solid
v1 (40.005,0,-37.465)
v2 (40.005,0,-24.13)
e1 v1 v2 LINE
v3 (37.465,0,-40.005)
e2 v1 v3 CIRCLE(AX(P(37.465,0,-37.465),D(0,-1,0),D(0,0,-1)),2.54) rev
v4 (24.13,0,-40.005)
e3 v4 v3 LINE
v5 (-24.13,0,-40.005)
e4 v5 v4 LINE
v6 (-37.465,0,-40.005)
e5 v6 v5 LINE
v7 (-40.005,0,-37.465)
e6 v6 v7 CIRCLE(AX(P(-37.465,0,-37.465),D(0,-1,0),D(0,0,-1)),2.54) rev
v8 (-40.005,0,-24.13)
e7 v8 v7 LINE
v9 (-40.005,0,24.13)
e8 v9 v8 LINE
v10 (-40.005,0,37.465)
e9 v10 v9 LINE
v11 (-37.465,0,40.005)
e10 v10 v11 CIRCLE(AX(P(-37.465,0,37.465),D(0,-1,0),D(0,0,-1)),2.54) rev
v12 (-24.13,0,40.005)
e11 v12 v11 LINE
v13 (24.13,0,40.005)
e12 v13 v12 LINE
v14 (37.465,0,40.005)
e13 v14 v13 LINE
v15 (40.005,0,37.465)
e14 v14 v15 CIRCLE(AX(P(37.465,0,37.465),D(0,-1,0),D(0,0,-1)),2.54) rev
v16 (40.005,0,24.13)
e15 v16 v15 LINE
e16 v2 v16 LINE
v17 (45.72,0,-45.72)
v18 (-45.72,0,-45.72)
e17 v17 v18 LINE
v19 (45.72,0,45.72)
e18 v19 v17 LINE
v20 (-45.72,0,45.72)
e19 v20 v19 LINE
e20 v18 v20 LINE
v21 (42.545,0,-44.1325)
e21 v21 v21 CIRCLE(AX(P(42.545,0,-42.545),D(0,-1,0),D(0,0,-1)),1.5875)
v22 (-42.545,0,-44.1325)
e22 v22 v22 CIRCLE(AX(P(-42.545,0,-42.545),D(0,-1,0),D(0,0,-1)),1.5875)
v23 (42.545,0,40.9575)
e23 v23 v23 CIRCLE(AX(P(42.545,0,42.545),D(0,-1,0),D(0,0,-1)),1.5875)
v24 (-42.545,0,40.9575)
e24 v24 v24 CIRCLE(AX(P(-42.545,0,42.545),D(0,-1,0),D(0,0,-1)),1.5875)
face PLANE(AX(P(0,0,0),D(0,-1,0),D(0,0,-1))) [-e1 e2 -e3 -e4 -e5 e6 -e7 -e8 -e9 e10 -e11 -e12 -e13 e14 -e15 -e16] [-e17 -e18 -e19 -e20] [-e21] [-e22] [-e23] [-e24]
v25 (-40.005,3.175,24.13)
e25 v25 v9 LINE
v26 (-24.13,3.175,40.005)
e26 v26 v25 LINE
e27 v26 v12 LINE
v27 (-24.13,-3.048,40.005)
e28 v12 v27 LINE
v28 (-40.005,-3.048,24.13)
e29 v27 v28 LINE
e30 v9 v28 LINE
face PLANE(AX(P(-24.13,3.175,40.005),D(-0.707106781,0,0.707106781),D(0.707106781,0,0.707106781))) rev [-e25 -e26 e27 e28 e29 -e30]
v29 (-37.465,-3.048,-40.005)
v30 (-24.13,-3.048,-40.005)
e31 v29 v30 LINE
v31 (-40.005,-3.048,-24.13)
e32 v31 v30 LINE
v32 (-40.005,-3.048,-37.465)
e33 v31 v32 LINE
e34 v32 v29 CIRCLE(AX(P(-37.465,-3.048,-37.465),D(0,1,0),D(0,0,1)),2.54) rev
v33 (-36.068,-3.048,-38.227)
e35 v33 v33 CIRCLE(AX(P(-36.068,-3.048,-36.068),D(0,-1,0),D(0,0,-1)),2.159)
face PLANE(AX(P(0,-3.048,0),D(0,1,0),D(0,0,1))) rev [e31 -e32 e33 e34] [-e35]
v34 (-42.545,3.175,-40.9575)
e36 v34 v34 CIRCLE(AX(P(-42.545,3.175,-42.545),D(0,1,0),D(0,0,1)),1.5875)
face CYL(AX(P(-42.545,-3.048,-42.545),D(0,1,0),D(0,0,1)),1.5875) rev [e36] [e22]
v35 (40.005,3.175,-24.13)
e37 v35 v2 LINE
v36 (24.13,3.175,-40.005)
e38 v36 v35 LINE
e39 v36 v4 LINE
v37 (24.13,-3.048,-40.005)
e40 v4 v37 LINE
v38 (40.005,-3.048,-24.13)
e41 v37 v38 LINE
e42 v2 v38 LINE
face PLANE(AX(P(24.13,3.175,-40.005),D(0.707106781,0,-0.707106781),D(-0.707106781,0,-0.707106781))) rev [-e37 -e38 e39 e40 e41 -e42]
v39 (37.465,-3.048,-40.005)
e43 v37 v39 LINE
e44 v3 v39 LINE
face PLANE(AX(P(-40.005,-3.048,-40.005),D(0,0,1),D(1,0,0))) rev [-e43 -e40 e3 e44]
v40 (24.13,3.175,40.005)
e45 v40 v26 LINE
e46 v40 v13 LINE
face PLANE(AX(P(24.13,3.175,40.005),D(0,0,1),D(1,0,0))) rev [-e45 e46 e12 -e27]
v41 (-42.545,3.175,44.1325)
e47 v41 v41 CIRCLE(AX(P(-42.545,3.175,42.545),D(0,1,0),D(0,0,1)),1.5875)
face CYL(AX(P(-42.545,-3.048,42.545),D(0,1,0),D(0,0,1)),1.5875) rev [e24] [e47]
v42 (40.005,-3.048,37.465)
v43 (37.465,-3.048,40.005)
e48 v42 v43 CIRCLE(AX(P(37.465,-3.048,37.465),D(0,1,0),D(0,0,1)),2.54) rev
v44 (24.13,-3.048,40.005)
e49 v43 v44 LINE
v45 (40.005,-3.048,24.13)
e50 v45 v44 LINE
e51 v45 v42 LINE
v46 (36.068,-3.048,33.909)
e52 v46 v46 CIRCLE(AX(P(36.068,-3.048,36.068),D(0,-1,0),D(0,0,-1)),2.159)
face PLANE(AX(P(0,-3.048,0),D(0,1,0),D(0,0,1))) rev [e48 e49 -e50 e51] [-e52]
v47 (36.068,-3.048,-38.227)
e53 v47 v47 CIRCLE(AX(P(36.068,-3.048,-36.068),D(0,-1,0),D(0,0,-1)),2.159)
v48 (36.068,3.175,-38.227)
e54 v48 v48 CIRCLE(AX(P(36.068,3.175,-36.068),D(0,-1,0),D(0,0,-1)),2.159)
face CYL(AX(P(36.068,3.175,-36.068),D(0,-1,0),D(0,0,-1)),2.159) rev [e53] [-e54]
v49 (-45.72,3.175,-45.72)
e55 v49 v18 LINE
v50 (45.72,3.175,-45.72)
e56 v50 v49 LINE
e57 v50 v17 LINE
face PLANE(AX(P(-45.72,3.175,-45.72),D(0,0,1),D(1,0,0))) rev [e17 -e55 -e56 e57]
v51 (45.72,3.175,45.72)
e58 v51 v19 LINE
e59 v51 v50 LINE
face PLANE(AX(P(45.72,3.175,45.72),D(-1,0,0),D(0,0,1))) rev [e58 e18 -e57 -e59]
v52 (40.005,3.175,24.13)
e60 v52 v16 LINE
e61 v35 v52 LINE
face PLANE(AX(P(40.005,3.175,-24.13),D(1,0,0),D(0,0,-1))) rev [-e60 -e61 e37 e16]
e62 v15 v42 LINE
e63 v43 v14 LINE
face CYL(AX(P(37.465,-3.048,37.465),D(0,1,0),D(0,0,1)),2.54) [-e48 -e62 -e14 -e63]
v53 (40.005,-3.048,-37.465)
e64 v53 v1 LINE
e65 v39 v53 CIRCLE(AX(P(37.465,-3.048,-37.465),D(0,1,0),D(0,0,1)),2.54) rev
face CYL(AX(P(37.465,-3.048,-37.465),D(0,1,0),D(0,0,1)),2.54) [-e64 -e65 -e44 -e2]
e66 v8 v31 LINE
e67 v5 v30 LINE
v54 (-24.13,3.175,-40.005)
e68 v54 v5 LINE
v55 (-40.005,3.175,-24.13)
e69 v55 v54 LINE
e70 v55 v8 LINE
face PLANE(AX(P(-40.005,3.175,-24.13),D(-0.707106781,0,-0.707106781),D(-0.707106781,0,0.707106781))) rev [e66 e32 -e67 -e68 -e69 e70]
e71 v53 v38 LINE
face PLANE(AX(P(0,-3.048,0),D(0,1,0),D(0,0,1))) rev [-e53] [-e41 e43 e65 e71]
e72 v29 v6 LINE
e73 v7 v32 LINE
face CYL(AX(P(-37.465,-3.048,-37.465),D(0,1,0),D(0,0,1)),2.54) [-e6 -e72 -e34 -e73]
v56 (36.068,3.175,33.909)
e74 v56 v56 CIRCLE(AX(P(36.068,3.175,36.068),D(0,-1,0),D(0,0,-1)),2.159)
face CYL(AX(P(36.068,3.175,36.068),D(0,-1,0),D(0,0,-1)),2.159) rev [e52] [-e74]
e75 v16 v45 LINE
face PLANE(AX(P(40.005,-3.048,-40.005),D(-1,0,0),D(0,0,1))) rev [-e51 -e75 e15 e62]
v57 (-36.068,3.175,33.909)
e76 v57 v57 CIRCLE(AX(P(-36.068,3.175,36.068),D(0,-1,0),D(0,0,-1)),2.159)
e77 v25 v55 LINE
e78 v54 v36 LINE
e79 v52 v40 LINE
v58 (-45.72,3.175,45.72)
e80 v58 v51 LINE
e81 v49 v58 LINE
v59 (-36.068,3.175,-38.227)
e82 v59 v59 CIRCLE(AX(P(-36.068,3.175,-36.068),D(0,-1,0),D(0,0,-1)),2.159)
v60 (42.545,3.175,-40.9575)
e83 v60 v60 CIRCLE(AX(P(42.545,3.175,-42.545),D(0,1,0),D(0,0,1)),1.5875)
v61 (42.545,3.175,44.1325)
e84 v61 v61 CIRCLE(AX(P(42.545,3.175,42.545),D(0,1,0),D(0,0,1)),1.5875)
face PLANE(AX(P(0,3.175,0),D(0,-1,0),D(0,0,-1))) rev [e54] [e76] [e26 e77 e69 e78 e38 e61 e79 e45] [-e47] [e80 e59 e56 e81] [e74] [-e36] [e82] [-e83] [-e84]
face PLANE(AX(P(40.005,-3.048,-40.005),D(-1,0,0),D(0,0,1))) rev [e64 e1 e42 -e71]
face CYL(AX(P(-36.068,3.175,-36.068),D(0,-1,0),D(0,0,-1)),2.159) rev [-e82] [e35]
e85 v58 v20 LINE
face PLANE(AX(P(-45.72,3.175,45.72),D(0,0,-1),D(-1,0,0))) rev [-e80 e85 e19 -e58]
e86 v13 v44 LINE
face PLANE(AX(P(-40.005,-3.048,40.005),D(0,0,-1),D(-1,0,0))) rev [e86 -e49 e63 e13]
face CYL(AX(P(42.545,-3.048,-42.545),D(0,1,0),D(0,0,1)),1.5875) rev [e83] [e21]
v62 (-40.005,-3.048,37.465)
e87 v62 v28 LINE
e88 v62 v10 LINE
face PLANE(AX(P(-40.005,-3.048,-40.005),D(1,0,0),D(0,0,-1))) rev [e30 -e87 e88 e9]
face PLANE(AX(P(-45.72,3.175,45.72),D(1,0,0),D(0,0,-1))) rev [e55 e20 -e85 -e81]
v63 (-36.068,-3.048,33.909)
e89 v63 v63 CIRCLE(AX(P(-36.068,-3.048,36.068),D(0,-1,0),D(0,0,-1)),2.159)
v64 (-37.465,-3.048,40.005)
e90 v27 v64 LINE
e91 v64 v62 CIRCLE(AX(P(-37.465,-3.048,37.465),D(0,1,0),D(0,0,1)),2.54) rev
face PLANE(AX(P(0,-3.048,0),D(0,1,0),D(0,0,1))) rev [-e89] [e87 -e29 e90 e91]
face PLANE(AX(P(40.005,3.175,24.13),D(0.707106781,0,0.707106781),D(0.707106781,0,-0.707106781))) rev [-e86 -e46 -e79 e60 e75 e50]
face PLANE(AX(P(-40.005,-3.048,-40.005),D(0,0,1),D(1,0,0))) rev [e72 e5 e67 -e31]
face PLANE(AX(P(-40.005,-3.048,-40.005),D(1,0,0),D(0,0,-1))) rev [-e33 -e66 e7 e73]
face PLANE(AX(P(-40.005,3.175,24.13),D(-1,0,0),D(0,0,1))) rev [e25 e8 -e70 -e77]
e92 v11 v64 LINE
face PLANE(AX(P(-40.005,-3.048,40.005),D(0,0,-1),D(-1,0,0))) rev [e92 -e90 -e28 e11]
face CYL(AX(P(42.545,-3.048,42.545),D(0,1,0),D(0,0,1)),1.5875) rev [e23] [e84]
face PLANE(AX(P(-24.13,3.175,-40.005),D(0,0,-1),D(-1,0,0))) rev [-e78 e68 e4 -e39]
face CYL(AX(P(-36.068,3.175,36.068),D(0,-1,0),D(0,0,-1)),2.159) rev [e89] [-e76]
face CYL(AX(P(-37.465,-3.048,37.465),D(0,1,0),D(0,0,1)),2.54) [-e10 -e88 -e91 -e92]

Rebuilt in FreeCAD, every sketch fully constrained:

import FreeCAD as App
import Part
import Sketcher
Q = App.Units.Quantity


def edges_at(feature, points):
    """Names of the edges that pass closest to the given points."""
    edges = feature.Shape.Edges
    near = lambda p: min(range(len(edges)), key=lambda i: edges[i].distToShape(Part.Vertex(*p))[0])
    return sorted({f"Edge{near(p) + 1}" for p in points})

doc = App.newDocument("Part")
body = doc.addObject("PartDesign::Body", "Body")

sketch1 = body.newObject("Sketcher::SketchObject", "Sketch")
sketch1.AttachmentSupport = (doc.getObject("XZ_Plane"), [""])
sketch1.MapMode = "FlatFace"
sketch1.addGeometry([
    Part.LineSegment(App.Vector(-45.72, -45.72, 0), App.Vector(-45.72, 45.72, 0)),
    Part.LineSegment(App.Vector(-45.72, 45.72, 0), App.Vector(45.72, 45.72, 0)),
    Part.LineSegment(App.Vector(45.72, 45.72, 0), App.Vector(45.72, -45.72, 0)),
    Part.LineSegment(App.Vector(45.72, -45.72, 0), App.Vector(-45.72, -45.72, 0)),
], False)
sketch1.addConstraint([
    Sketcher.Constraint("Coincident", 0, 2, 1, 1),
    Sketcher.Constraint("Coincident", 1, 2, 2, 1),
    Sketcher.Constraint("Coincident", 2, 2, 3, 1),
    Sketcher.Constraint("Coincident", 3, 2, 0, 1),
    Sketcher.Constraint("Vertical", 0),
    Sketcher.Constraint("Horizontal", 1),
    Sketcher.Constraint("Vertical", 2),
    Sketcher.Constraint("Horizontal", 3),
    Sketcher.Constraint("Symmetric", 0, 2, 2, 2, -1, 1),
    Sketcher.Constraint("Equal", 3, 0),
    Sketcher.Constraint("DistanceX", 1, 1, 1, 2, Q("3.6 in")),
])
pad1 = body.newObject("PartDesign::Pad", "Pad")
pad1.Profile = sketch1
pad1.Length = Q("0.125 in")
pad1.Reversed = True

sketch2 = body.newObject("Sketcher::SketchObject", "Sketch001")
sketch2.AttachmentSupport = (doc.getObject("XZ_Plane"), [""])
sketch2.MapMode = "FlatFace"
sketch2.addGeometry([
    Part.LineSegment(App.Vector(-40.005, 40.005, 0), App.Vector(-40.005, -40.005, 0)),
    Part.LineSegment(App.Vector(-40.005, -40.005, 0), App.Vector(40.005, -40.005, 0)),
    Part.LineSegment(App.Vector(40.005, -40.005, 0), App.Vector(40.005, 40.005, 0)),
    Part.LineSegment(App.Vector(40.005, 40.005, 0), App.Vector(-40.005, 40.005, 0)),
], False)
sketch2.addConstraint([
    Sketcher.Constraint("Coincident", 0, 2, 1, 1),
    Sketcher.Constraint("Coincident", 1, 2, 2, 1),
    Sketcher.Constraint("Coincident", 2, 2, 3, 1),
    Sketcher.Constraint("Coincident", 3, 2, 0, 1),
    Sketcher.Constraint("Vertical", 0),
    Sketcher.Constraint("Horizontal", 1),
    Sketcher.Constraint("Vertical", 2),
    Sketcher.Constraint("Horizontal", 3),
    Sketcher.Constraint("Symmetric", 0, 2, 2, 2, -1, 1),
    Sketcher.Constraint("Equal", 3, 0),
    Sketcher.Constraint("DistanceX", 1, 1, 1, 2, Q("3.15 in")),
])
pad2 = body.newObject("PartDesign::Pad", "Pad001")
pad2.Profile = sketch2
pad2.Length = Q("0.12 in")

sketch3 = body.newObject("Sketcher::SketchObject", "Sketch002")
sketch3.AttachmentSupport = (doc.getObject("XZ_Plane"), [""])
sketch3.MapMode = "FlatFace"
sketch3.AttachmentOffset = App.Placement(App.Vector(0, 0, 0.12 * 25.4), App.Rotation())
sketch3.addGeometry([
    Part.LineSegment(App.Vector(-24.13, 40.005, 0), App.Vector(-40.005, 24.13, 0)),
    Part.LineSegment(App.Vector(-40.005, 24.13, 0), App.Vector(-40.005, -24.13, 0)),
    Part.LineSegment(App.Vector(-40.005, -24.13, 0), App.Vector(-24.13, -40.005, 0)),
    Part.LineSegment(App.Vector(-24.13, -40.005, 0), App.Vector(24.13, -40.005, 0)),
    Part.LineSegment(App.Vector(24.13, -40.005, 0), App.Vector(40.005, -24.13, 0)),
    Part.LineSegment(App.Vector(40.005, -24.13, 0), App.Vector(40.005, 24.13, 0)),
    Part.LineSegment(App.Vector(40.005, 24.13, 0), App.Vector(24.13, 40.005, 0)),
    Part.LineSegment(App.Vector(24.13, 40.005, 0), App.Vector(-24.13, 40.005, 0)),
], False)
sketch3.addConstraint([
    Sketcher.Constraint("Coincident", 0, 2, 1, 1),
    Sketcher.Constraint("Coincident", 1, 2, 2, 1),
    Sketcher.Constraint("Coincident", 2, 2, 3, 1),
    Sketcher.Constraint("Coincident", 3, 2, 4, 1),
    Sketcher.Constraint("Coincident", 4, 2, 5, 1),
    Sketcher.Constraint("Coincident", 5, 2, 6, 1),
    Sketcher.Constraint("Coincident", 6, 2, 7, 1),
    Sketcher.Constraint("Coincident", 7, 2, 0, 1),
    Sketcher.Constraint("Vertical", 1),
    Sketcher.Constraint("Horizontal", 3),
    Sketcher.Constraint("Vertical", 5),
    Sketcher.Constraint("Horizontal", 7),
    Sketcher.Constraint("Symmetric", 0, 2, 4, 2, -1, 1),
    Sketcher.Constraint("Symmetric", 2, 2, 6, 2, -1, 1),
    Sketcher.Constraint("Perpendicular", 0, 2),
    Sketcher.Constraint("Perpendicular", 2, 4),
    Sketcher.Constraint("Perpendicular", 4, 6),
    Sketcher.Constraint("Horizontal", 1, 2, 4, 2),
    Sketcher.Constraint("Vertical", 3, 2, 6, 2),
    Sketcher.Constraint("Equal", 7, 1),
    Sketcher.Constraint("DistanceX", 3, 1, 3, 2, Q("1.9 in")),
    Sketcher.Constraint("DistanceX", 1, 2, 4, 2, Q("3.15 in")),
])
pocket1 = body.newObject("PartDesign::Pocket", "Pocket")
pocket1.Profile = sketch3
pocket1.Type = "ThroughAll"

sketch4 = body.newObject("Sketcher::SketchObject", "Sketch003")
sketch4.AttachmentSupport = (doc.getObject("XZ_Plane"), [""])
sketch4.MapMode = "FlatFace"
sketch4.AttachmentOffset = App.Placement(App.Vector(0, 0, 0.12 * 25.4), App.Rotation())
sketch4.addGeometry([
    Part.Circle(App.Vector(-36.068, 36.068, 0), App.Vector(0, 0, 1), 2.159),
    Part.Circle(App.Vector(36.068, 36.068, 0), App.Vector(0, 0, 1), 2.159),
    Part.Circle(App.Vector(36.068, -36.068, 0), App.Vector(0, 0, 1), 2.159),
    Part.Circle(App.Vector(-36.068, -36.068, 0), App.Vector(0, 0, 1), 2.159),
], False)
sketch4.addConstraint([
    Sketcher.Constraint("Equal", 0, 1),
    Sketcher.Constraint("Equal", 1, 2),
    Sketcher.Constraint("Equal", 2, 3),
    Sketcher.Constraint("Symmetric", 0, 3, 2, 3, -1, 1),
    Sketcher.Constraint("Symmetric", 1, 3, 3, 3, -1, 1),
    Sketcher.Constraint("Symmetric", 0, 3, 1, 3, -2),
    Sketcher.Constraint("Diameter", 0, Q("0.17 in")),
    Sketcher.Constraint("DistanceX", 0, 3, -1, 1, Q("1.42 in")),
    Sketcher.Constraint("DistanceY", -1, 1, 0, 3, Q("1.42 in")),
])
pocket2 = body.newObject("PartDesign::Pocket", "Pocket001")
pocket2.Profile = sketch4
pocket2.Type = "ThroughAll"
doc.recompute()

fillet = body.newObject("PartDesign::Fillet", "Fillet")
fillet.Base = (pocket2, edges_at(pocket2, [
    (40.005, -1.524, -40.005),
    (40.005, -1.524, 40.005),
    (-40.005, -1.524, 40.005),
    (-40.005, -1.524, -40.005),
]))
fillet.Radius = Q("0.1 in")

sketch5 = body.newObject("Sketcher::SketchObject", "Sketch004")
sketch5.AttachmentSupport = (doc.getObject("XZ_Plane"), [""])
sketch5.MapMode = "FlatFace"
sketch5.AttachmentOffset = App.Placement(App.Vector(0, 0, -0.125 * 25.4), App.Rotation())
sketch5.addGeometry([
    Part.Circle(App.Vector(-42.545, -42.545, 0), App.Vector(0, 0, 1), 1.5875),
    Part.Circle(App.Vector(42.545, -42.545, 0), App.Vector(0, 0, 1), 1.5875),
    Part.Circle(App.Vector(42.545, 42.545, 0), App.Vector(0, 0, 1), 1.5875),
    Part.Circle(App.Vector(-42.545, 42.545, 0), App.Vector(0, 0, 1), 1.5875),
], False)
sketch5.addConstraint([
    Sketcher.Constraint("Equal", 0, 1),
    Sketcher.Constraint("Equal", 1, 2),
    Sketcher.Constraint("Equal", 2, 3),
    Sketcher.Constraint("Symmetric", 0, 3, 2, 3, -1, 1),
    Sketcher.Constraint("Symmetric", 1, 3, 3, 3, -1, 1),
    Sketcher.Constraint("Symmetric", 0, 3, 1, 3, -2),
    Sketcher.Constraint("Diameter", 0, Q("0.125 in")),
    Sketcher.Constraint("DistanceX", 0, 3, 1, 3, Q("3.35 in")),
    Sketcher.Constraint("DistanceY", 1, 3, 2, 3, Q("3.35 in")),
])
pocket3 = body.newObject("PartDesign::Pocket", "Pocket002")
pocket3.Profile = sketch5
pocket3.Type = "ThroughAll"
pocket3.Reversed = True

doc.recompute()
